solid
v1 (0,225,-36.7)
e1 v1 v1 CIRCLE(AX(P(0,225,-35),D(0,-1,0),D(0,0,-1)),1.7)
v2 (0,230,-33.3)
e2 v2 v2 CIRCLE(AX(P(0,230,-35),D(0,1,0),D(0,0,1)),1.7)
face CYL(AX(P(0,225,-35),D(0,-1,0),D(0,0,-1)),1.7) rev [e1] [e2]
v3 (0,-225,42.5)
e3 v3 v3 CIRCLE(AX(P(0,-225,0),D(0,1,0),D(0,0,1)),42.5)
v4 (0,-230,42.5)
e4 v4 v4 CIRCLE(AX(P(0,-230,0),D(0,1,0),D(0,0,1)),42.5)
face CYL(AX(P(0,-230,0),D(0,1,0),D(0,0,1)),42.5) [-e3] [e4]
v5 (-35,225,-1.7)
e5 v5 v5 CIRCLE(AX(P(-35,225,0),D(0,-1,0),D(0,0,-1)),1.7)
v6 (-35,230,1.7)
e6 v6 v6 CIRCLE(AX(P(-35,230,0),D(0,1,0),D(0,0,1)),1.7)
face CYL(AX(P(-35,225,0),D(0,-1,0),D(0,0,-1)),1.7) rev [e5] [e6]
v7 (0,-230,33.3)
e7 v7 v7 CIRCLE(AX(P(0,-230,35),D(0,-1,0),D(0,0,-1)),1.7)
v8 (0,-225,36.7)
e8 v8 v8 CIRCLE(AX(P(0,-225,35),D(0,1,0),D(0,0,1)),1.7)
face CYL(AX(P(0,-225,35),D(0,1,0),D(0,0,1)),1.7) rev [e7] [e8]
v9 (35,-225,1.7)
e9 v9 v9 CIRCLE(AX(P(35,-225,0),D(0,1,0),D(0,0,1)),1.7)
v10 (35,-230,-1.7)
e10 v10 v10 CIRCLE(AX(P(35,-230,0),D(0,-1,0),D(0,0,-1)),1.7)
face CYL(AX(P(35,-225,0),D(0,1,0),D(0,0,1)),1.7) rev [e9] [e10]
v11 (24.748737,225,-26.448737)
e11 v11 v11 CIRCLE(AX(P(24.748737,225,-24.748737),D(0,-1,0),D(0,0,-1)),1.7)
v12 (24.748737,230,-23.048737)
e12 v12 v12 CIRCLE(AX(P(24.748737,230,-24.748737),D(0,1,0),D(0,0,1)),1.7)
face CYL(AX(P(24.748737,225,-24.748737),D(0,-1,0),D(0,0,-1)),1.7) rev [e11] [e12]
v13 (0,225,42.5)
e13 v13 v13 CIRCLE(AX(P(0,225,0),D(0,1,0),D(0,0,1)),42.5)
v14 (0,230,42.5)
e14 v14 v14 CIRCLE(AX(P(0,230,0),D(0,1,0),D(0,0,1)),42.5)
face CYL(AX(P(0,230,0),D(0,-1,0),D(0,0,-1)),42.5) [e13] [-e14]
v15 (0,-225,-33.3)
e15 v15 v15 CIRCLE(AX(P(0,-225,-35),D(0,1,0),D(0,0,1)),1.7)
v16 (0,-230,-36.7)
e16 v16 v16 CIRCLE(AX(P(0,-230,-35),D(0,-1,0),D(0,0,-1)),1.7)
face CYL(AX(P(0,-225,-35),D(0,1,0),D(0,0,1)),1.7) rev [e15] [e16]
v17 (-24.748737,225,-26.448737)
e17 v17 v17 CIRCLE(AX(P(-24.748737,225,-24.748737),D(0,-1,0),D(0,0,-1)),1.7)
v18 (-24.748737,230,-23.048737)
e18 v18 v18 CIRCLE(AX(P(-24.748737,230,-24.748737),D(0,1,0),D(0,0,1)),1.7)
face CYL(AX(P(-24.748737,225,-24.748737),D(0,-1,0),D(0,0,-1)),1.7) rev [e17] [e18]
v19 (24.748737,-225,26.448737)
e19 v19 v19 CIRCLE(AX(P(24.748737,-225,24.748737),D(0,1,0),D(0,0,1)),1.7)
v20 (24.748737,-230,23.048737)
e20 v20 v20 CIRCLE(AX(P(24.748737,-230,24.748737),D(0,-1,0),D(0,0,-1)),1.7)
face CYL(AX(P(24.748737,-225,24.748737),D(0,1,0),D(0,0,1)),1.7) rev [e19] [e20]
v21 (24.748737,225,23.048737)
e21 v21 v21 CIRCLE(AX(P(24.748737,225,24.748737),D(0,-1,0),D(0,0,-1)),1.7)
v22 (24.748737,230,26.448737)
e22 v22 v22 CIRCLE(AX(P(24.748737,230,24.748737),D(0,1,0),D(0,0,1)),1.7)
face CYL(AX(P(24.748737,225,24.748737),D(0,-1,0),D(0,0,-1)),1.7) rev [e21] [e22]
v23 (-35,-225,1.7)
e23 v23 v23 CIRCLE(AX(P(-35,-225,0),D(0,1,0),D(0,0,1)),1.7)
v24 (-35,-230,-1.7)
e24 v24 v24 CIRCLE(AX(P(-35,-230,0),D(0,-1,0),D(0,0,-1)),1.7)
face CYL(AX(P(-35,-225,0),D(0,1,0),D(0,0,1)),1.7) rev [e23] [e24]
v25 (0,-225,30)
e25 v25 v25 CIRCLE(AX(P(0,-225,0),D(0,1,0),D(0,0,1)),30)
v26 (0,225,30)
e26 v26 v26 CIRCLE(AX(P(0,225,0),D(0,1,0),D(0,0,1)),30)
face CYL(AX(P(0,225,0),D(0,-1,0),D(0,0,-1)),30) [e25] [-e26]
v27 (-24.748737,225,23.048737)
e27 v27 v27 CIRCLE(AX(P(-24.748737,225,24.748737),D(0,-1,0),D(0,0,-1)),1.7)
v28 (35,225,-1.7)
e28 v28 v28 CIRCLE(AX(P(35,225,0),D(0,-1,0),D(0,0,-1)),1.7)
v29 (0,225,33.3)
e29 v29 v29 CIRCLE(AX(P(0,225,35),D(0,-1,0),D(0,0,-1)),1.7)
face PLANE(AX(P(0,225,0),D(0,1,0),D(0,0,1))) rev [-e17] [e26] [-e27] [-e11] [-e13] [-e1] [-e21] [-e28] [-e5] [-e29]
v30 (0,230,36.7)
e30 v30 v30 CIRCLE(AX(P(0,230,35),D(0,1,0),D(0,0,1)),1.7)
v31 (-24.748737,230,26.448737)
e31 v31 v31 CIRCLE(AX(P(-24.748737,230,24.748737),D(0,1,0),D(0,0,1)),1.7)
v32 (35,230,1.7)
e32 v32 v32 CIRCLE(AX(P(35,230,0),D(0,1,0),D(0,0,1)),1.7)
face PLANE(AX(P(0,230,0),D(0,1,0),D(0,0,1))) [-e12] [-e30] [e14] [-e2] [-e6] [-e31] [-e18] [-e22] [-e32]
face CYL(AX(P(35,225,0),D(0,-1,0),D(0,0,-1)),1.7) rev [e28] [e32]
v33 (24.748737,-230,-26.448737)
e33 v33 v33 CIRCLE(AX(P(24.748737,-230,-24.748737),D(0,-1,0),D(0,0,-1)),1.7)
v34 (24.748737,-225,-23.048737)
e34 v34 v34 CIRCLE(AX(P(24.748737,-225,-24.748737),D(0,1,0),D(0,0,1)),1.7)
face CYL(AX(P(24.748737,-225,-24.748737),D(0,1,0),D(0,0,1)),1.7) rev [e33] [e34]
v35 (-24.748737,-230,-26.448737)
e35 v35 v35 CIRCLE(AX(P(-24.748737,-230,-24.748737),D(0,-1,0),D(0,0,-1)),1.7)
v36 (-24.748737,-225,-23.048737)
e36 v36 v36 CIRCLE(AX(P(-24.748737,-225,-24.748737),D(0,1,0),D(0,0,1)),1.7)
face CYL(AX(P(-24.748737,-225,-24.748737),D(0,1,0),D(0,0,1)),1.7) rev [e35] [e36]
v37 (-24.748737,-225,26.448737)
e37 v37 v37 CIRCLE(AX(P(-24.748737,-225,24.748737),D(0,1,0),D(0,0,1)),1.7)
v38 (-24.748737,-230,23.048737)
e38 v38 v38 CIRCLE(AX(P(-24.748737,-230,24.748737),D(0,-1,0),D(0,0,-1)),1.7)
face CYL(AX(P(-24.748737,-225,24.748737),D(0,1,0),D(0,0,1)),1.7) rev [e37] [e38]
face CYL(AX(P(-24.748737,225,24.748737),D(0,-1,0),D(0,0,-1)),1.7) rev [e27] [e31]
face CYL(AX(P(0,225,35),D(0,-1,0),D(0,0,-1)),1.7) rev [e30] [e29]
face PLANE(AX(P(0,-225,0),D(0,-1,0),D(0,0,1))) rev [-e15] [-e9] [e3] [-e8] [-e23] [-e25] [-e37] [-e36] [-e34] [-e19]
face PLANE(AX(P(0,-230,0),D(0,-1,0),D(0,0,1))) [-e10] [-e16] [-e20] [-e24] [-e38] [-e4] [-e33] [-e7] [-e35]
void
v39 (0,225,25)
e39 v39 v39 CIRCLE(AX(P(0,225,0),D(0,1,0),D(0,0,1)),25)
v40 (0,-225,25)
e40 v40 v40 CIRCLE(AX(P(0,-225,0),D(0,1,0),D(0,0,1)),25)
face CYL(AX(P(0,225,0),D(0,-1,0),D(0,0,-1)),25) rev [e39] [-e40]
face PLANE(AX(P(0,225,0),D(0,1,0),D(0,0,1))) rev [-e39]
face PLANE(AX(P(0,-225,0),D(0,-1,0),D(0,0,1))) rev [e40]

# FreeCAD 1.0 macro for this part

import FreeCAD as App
import Part
import Sketcher
from FreeCAD import Vector
Q = App.Units.Quantity

doc = App.newDocument("Part")
body = doc.addObject("PartDesign::Body", "Body")

# Sketch on XZ plane
sketch1 = body.newObject("Sketcher::SketchObject", "Sketch")
sketch1.AttachmentSupport = (doc.getObject("XZ_Plane"), [""])
sketch1.MapMode = "FlatFace"
sketch1.addGeometry(Part.Circle(Vector(0, 0, 0), Vector(0, 0, 1), 30), False)
sketch1.addGeometry(Part.Circle(Vector(0, 0, 0), Vector(0, 0, 1), 25), False)
sketch1.addConstraint(Sketcher.Constraint("Coincident", 0, 3, -1, 1))
sketch1.addConstraint(Sketcher.Constraint("Coincident", 1, 3, -1, 1))
sketch1.addConstraint(Sketcher.Constraint("Diameter", 0, Q("60 mm")))
sketch1.addConstraint(Sketcher.Constraint("Diameter", 1, Q("50 mm")))
pad1 = body.newObject("PartDesign::Pad", "Pad")
pad1.Profile = sketch1
pad1.Length = 450
pad1.Midplane = True

# Sketch on XZ plane
sketch2 = body.newObject("Sketcher::SketchObject", "Sketch001")
sketch2.AttachmentSupport = (doc.getObject("XZ_Plane"), [""])
sketch2.MapMode = "FlatFace"
sketch2.AttachmentOffset = App.Placement(Vector(0, 0, -225), App.Rotation())
sketch2.addGeometry(Part.Circle(Vector(0, 0, 0), Vector(0, 0, 1), 42.5), False)
sketch2.addConstraint(Sketcher.Constraint("Coincident", 0, 3, -1, 1))
sketch2.addConstraint(Sketcher.Constraint("Diameter", 0, Q("85 mm")))
pad2 = body.newObject("PartDesign::Pad", "Pad001")
pad2.Profile = sketch2
pad2.Length = 5
pad2.Reversed = True

# Sketch on XZ plane
sketch3 = body.newObject("Sketcher::SketchObject", "Sketch002")
sketch3.AttachmentSupport = (doc.getObject("XZ_Plane"), [""])
sketch3.MapMode = "FlatFace"
sketch3.AttachmentOffset = App.Placement(Vector(0, 0, -225), App.Rotation())
sketch3.addGeometry(Part.Circle(Vector(0, 35, 0), Vector(0, 0, 1), 1.7), False)
sketch3.addGeometry(Part.Circle(Vector(24.748737, 24.748737, 0), Vector(0, 0, 1), 1.7), False)
sketch3.addGeometry(Part.Circle(Vector(35, 0, 0), Vector(0, 0, 1), 1.7), False)
sketch3.addGeometry(Part.Circle(Vector(24.748737, -24.748737, 0), Vector(0, 0, 1), 1.7), False)
sketch3.addGeometry(Part.Circle(Vector(0, -35, 0), Vector(0, 0, 1), 1.7), False)
sketch3.addGeometry(Part.Circle(Vector(-24.748737, -24.748737, 0), Vector(0, 0, 1), 1.7), False)
sketch3.addGeometry(Part.Circle(Vector(-35, 0, 0), Vector(0, 0, 1), 1.7), False)
sketch3.addGeometry(Part.Circle(Vector(-24.748737, 24.748737, 0), Vector(0, 0, 1), 1.7), False)
sketch3.addConstraint(Sketcher.Constraint("Equal", 0, 1))
sketch3.addConstraint(Sketcher.Constraint("Equal", 1, 2))
sketch3.addConstraint(Sketcher.Constraint("Equal", 2, 3))
sketch3.addConstraint(Sketcher.Constraint("Equal", 3, 4))
sketch3.addConstraint(Sketcher.Constraint("Equal", 4, 5))
sketch3.addConstraint(Sketcher.Constraint("Equal", 5, 6))
sketch3.addConstraint(Sketcher.Constraint("Equal", 6, 7))
sketch3.addConstraint(Sketcher.Constraint("Symmetric", 0, 3, 4, 3, -1, 1))
sketch3.addConstraint(Sketcher.Constraint("Symmetric", 1, 3, 5, 3, -1, 1))
sketch3.addConstraint(Sketcher.Constraint("Symmetric", 2, 3, 6, 3, -1, 1))
sketch3.addConstraint(Sketcher.Constraint("Symmetric", 3, 3, 7, 3, -1, 1))
sketch3.addConstraint(Sketcher.Constraint("Symmetric", 3, 3, 5, 3, -2))
sketch3.addConstraint(Sketcher.Constraint("PointOnObject", 0, 3, -2))
sketch3.addConstraint(Sketcher.Constraint("PointOnObject", 2, 3, -1))
sketch3.addConstraint(Sketcher.Constraint("Diameter", 0, Q("3.4 mm")))
sketch3.addConstraint(Sketcher.Constraint("DistanceY", -1, 1, 0, 3, Q("35 mm")))
sketch3.addConstraint(Sketcher.Constraint("DistanceX", -1, 1, 2, 3, Q("35 mm")))
sketch3.addConstraint(Sketcher.Constraint("DistanceX", -1, 1, 1, 3, Q("24.748737 mm")))
sketch3.addConstraint(Sketcher.Constraint("DistanceY", -1, 1, 1, 3, Q("24.748737 mm")))
doc.recompute()
hole = body.newObject("PartDesign::Hole", "Hole")
hole.Profile = sketch3
hole.ThreadType = "None"
hole.Diameter = 3.4
hole.DepthType = "ThroughAll"
doc.recompute()

mirrored = body.newObject("PartDesign::Mirrored", "Mirrored")
mirrored.Originals = [pad2, hole]
mirrored.MirrorPlane = (doc.getObject("XZ_Plane"), [""])
body.Tip = mirrored

doc.recompute()
